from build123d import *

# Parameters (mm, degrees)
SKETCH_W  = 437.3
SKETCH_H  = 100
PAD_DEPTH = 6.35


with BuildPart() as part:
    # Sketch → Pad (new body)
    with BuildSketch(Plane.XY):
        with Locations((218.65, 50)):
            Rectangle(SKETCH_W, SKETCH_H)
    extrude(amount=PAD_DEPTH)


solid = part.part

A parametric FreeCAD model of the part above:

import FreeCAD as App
import Part
import Sketcher
from FreeCAD import Vector
Q = App.Units.Quantity


def add_polygon(sketch, points):
    """Adds a closed chain of lines whose ends are joined by coincident constraints."""
    first, n = sketch.GeometryCount, len(points)
    for a, b in zip(points, points[1:] + points[:1]):
        sketch.addGeometry(Part.LineSegment(App.Vector(*a, 0), App.Vector(*b, 0)), False)
    for i in range(n):
        sketch.addConstraint(Sketcher.Constraint("Coincident", first + i, 2, first + (i + 1) % n, 1))

doc = App.newDocument("Part")
body = doc.addObject("PartDesign::Body", "Body")

sketch1 = doc.addObject("Sketcher::SketchObject", "Sketch")
body.addObject(sketch1)
sketch1.AttachmentSupport = (doc.XY_Plane, [""])
sketch1.MapMode = "FlatFace"
add_polygon(sketch1, [(0, 100), (0, 0), (437, 0), (437, 100)])
sketch1.addConstraint([
    Sketcher.Constraint("Vertical", 0),
    Sketcher.Constraint("Horizontal", 1),
    Sketcher.Constraint("Vertical", 2),
    Sketcher.Constraint("Horizontal", 3),
    Sketcher.Constraint("Coincident", 0, 2, -1, 1),
    Sketcher.Constraint("DistanceY", 0, 2, 0, 1, Q("100 mm")),
    Sketcher.Constraint("DistanceX", 1, 1, 1, 2, Q("437.3 mm")),
])
pad1 = doc.addObject("PartDesign::Pad", "Pad")
body.addObject(pad1)
pad1.Profile = sketch1
pad1.Length = 6.35

doc.recompute()
